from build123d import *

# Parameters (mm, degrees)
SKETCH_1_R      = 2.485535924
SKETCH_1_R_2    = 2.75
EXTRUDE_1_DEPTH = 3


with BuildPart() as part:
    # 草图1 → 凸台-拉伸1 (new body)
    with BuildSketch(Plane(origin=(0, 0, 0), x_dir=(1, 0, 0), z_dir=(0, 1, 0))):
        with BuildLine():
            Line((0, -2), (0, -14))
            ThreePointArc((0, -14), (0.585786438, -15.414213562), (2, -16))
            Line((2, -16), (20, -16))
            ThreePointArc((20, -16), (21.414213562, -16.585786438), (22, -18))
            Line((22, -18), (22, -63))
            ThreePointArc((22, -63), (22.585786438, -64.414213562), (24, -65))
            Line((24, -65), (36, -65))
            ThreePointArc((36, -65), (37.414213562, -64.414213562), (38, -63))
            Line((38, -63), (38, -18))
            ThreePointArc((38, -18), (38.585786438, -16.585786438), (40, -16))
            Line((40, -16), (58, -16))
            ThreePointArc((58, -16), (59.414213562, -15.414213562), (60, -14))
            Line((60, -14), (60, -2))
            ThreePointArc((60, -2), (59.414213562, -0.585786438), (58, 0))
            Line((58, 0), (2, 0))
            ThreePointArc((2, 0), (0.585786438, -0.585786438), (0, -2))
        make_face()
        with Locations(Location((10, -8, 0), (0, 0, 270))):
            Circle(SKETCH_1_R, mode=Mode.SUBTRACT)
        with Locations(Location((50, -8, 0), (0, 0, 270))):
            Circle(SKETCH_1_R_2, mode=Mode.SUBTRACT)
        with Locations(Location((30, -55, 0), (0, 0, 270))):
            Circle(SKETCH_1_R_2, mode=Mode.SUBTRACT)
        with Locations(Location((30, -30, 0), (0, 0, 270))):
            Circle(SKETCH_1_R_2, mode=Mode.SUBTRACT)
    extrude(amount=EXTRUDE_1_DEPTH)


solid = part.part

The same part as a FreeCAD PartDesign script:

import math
import FreeCAD as App
import Part
import Sketcher
from FreeCAD import Vector
Q = App.Units.Quantity

doc = App.newDocument("Part")
params = doc.addObject("Spreadsheet::Sheet", "Params")
for row, (alias, value) in enumerate([
    ("sketch1_radius", "2 mm"),
    ("sketch1_diameter", "5.5 mm"),
    ("sketch1_width", "18 mm"),
    ("sketch1_width2", "12 mm"),
    ("sketch1_height", "45 mm"),
    ("pad1_length", "3 mm"),
], start=1):
    params.set(f"A{row}", alias)
    params.set(f"B{row}", "=" + value)
    params.setAlias(f"B{row}", alias)

body = doc.addObject("PartDesign::Body", "Body")

# Sketch on XZ plane
sketch1 = body.newObject("Sketcher::SketchObject", "Sketch")
sketch1.AttachmentSupport = (doc.getObject("XZ_Plane"), [""])
sketch1.MapMode = "FlatFace"
sketch1.addGeometry([
    Part.LineSegment(Vector(0, 2, 0), Vector(0, 14, 0)),  # 0
    Part.ArcOfCircle(Part.Circle(Vector(2, 14, 0), Vector(0, 0, 1), 2), math.radians(90), math.radians(180)),  # 1
    Part.LineSegment(Vector(2, 16, 0), Vector(20, 16, 0)),  # 2
    Part.ArcOfCircle(Part.Circle(Vector(20, 18, 0), Vector(0, 0, 1), 2), math.radians(-90), math.radians(0)),  # 3
    Part.LineSegment(Vector(22, 18, 0), Vector(22, 63, 0)),  # 4
    Part.ArcOfCircle(Part.Circle(Vector(24, 63, 0), Vector(0, 0, 1), 2), math.radians(90), math.radians(180)),  # 5
    Part.LineSegment(Vector(24, 65, 0), Vector(36, 65, 0)),  # 6
    Part.ArcOfCircle(Part.Circle(Vector(36, 63, 0), Vector(0, 0, 1), 2), math.radians(0), math.radians(90)),  # 7
    Part.LineSegment(Vector(38, 63, 0), Vector(38, 18, 0)),  # 8
    Part.ArcOfCircle(Part.Circle(Vector(40, 18, 0), Vector(0, 0, 1), 2), math.radians(-180), math.radians(-90)),  # 9
    Part.LineSegment(Vector(40, 16, 0), Vector(58, 16, 0)),  # 10
    Part.ArcOfCircle(Part.Circle(Vector(58, 14, 0), Vector(0, 0, 1), 2), math.radians(0), math.radians(90)),  # 11
    Part.LineSegment(Vector(60, 14, 0), Vector(60, 2, 0)),  # 12
    Part.ArcOfCircle(Part.Circle(Vector(58, 2, 0), Vector(0, 0, 1), 2), math.radians(-90), math.radians(0)),  # 13
    Part.LineSegment(Vector(58, 0, 0), Vector(2, 0, 0)),  # 14
    Part.ArcOfCircle(Part.Circle(Vector(2, 2, 0), Vector(0, 0, 1), 2), math.radians(-180), math.radians(-90)),  # 15
    Part.Circle(Vector(30, 55, 0), Vector(0, 0, 1), 2.75),  # 16
    Part.Circle(Vector(30, 30, 0), Vector(0, 0, 1), 2.75),  # 17
    Part.Circle(Vector(10, 8, 0), Vector(0, 0, 1), 2.485536),  # 18
    Part.Circle(Vector(50, 8, 0), Vector(0, 0, 1), 2.75),  # 19
], False)
sketch1.addConstraint([
    Sketcher.Constraint("Tangent", 0, 2, 1, 2),
    Sketcher.Constraint("Tangent", 1, 1, 2, 1),
    Sketcher.Constraint("Tangent", 2, 2, 3, 1),
    Sketcher.Constraint("Tangent", 3, 2, 4, 1),
    Sketcher.Constraint("Tangent", 4, 2, 5, 2),
    Sketcher.Constraint("Tangent", 5, 1, 6, 1),
    Sketcher.Constraint("Tangent", 6, 2, 7, 2),
    Sketcher.Constraint("Tangent", 7, 1, 8, 1),
    Sketcher.Constraint("Tangent", 8, 2, 9, 1),
    Sketcher.Constraint("Tangent", 9, 2, 10, 1),
    Sketcher.Constraint("Tangent", 10, 2, 11, 2),
    Sketcher.Constraint("Tangent", 11, 1, 12, 1),
    Sketcher.Constraint("Tangent", 12, 2, 13, 2),
    Sketcher.Constraint("Tangent", 13, 1, 14, 1),
    Sketcher.Constraint("Tangent", 14, 2, 15, 2),
    Sketcher.Constraint("Tangent", 15, 1, 0, 1),
    Sketcher.Constraint("Vertical", 0),
    Sketcher.Constraint("Horizontal", 2),
    Sketcher.Constraint("Vertical", 4),
    Sketcher.Constraint("Horizontal", 6),
    Sketcher.Constraint("Vertical", 8),
    Sketcher.Constraint("Horizontal", 10),
    Sketcher.Constraint("Vertical", 12),
    Sketcher.Constraint("Horizontal", 14),
    Sketcher.Constraint("Equal", 1, 3),
    Sketcher.Constraint("Equal", 3, 5),
    Sketcher.Constraint("Equal", 5, 7),
    Sketcher.Constraint("Equal", 7, 9),
    Sketcher.Constraint("Equal", 9, 11),
    Sketcher.Constraint("Equal", 11, 13),
    Sketcher.Constraint("Equal", 13, 15),
    Sketcher.Constraint("Equal", 16, 17),
    Sketcher.Constraint("Equal", 17, 19),
    Sketcher.Constraint("PointOnObject", 0, 2, -2),
    Sketcher.Constraint("PointOnObject", 13, 1, -1),
    Sketcher.Constraint("Horizontal", 3, 3, 9, 3),
    Sketcher.Constraint("Horizontal", 18, 3, 19, 3),
    Sketcher.Constraint("Vertical", 16, 3, 17, 3),
    Sketcher.Constraint("Equal", 2, 10),
    Sketcher.Constraint("Equal", 6, 0),
    Sketcher.Constraint("Radius", 1, Q("2 mm")),
    Sketcher.Constraint("Diameter", 16, Q("5.5 mm")),
    Sketcher.Constraint("DistanceX", 2, 1, 2, 2, Q("18 mm")),
    Sketcher.Constraint("DistanceX", 6, 1, 6, 2, Q("12 mm")),
    Sketcher.Constraint("DistanceY", 4, 1, 4, 2, Q("45 mm")),
    Sketcher.Constraint("DistanceX", -1, 1, 16, 3, Q("30 mm")),
    Sketcher.Constraint("DistanceY", -1, 1, 16, 3, Q("55 mm")),
    Sketcher.Constraint("DistanceY", -1, 1, 17, 3, Q("30 mm")),
    Sketcher.Constraint("DistanceX", -1, 1, 18, 3, Q("10 mm")),
    Sketcher.Constraint("DistanceY", -1, 1, 18, 3, Q("8 mm")),
    Sketcher.Constraint("DistanceX", -1, 1, 19, 3, Q("50 mm")),
    Sketcher.Constraint("Diameter", 18, Q("4.971072 mm")),
])
sketch1.setExpression("Constraints[40]", "Params.sketch1_radius")
sketch1.setExpression("Constraints[41]", "Params.sketch1_diameter")
sketch1.setExpression("Constraints[42]", "Params.sketch1_width")
sketch1.setExpression("Constraints[43]", "Params.sketch1_width2")
sketch1.setExpression("Constraints[44]", "Params.sketch1_height")
pad1 = body.newObject("PartDesign::Pad", "Pad")
pad1.Profile = sketch1
pad1.setExpression("Length", "Params.pad1_length")
pad1.Reversed = True

doc.recompute()
